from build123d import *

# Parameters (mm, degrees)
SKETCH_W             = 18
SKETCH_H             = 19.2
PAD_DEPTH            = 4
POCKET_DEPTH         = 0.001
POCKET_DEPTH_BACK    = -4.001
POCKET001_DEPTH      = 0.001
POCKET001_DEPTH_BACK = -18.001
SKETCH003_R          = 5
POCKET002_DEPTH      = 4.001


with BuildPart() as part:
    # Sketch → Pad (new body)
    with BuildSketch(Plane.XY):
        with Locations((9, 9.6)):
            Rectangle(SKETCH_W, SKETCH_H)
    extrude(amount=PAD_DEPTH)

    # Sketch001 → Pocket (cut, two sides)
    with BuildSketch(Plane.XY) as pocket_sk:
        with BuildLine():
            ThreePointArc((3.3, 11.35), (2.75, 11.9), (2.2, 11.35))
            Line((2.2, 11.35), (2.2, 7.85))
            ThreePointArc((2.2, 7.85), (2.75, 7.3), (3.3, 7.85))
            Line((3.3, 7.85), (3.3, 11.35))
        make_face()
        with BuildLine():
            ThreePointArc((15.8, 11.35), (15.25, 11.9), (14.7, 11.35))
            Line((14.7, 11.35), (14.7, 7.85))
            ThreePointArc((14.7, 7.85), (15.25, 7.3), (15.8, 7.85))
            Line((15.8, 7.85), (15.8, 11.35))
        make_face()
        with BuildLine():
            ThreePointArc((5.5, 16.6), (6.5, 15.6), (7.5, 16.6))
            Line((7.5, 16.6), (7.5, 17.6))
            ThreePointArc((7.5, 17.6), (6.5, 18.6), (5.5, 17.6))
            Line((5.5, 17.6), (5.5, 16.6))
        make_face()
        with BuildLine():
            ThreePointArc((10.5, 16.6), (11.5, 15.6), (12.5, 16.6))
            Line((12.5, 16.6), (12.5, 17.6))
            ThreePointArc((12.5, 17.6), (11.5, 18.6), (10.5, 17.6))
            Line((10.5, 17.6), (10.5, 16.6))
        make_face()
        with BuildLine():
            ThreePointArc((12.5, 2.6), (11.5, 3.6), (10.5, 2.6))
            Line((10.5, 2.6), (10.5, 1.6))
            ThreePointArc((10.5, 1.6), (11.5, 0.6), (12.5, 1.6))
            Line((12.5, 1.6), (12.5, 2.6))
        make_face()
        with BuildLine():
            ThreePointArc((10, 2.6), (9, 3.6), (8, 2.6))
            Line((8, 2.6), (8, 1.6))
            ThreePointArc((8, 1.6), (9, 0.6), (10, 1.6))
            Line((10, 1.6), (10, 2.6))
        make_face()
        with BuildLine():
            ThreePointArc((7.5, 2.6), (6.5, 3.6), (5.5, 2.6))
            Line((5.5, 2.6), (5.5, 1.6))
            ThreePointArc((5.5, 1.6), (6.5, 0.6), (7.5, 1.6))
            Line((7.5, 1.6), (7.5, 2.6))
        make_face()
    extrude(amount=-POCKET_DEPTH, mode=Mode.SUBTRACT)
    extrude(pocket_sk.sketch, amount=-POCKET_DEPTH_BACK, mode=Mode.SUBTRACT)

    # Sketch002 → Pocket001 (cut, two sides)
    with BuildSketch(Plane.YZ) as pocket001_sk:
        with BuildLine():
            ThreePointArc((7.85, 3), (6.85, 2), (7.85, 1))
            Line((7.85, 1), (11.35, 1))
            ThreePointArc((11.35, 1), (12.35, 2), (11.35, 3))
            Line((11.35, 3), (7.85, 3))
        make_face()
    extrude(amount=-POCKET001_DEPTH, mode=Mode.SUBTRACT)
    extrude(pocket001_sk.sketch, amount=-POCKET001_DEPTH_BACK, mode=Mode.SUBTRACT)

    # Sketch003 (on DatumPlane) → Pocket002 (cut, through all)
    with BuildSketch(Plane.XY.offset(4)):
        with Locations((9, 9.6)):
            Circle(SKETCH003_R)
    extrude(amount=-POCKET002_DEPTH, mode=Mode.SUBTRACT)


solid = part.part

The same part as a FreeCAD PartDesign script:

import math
import FreeCAD as App
import Part
import Sketcher
from FreeCAD import Vector


def add_polygon(sketch, points):
    """Adds a closed chain of lines whose ends are joined by coincident constraints."""
    first, n = sketch.GeometryCount, len(points)
    for a, b in zip(points, points[1:] + points[:1]):
        sketch.addGeometry(Part.LineSegment(App.Vector(*a, 0), App.Vector(*b, 0)), False)
    for i in range(n):
        sketch.addConstraint(Sketcher.Constraint("Coincident", first + i, 2, first + (i + 1) % n, 1))

doc = App.newDocument("Part")
body = doc.addObject("PartDesign::Body", "Body")

sketch1 = doc.addObject("Sketcher::SketchObject", "Sketch")
body.addObject(sketch1)
sketch1.AttachmentSupport = (doc.XY_Plane, [""])
sketch1.MapMode = "FlatFace"
add_polygon(sketch1, [(0, 19), (0, 0), (18, 0), (18, 19)])
sketch1.addConstraint([
    Sketcher.Constraint("Vertical", 0),
    Sketcher.Constraint("Horizontal", 1),
    Sketcher.Constraint("Vertical", 2),
    Sketcher.Constraint("Horizontal", 3),
    Sketcher.Constraint("Coincident", 0, 2, -1, 1),
    Sketcher.Constraint("DistanceX", 1, 1, 1, 2, 18.0),
    Sketcher.Constraint("DistanceY", 0, 2, 0, 1, 19.2),
])
pad1 = doc.addObject("PartDesign::Pad", "Pad")
body.addObject(pad1)
pad1.Profile = sketch1
pad1.Length = 4

sketch2 = doc.addObject("Sketcher::SketchObject", "Sketch001")
body.addObject(sketch2)
sketch2.AttachmentSupport = (doc.XY_Plane, [""])
sketch2.MapMode = "FlatFace"
sketch2.addGeometry([
    Part.ArcOfCircle(Part.Circle(Vector(2.8, 11.3, 0), Vector(0, 0, 1), 0.6), math.radians(0), math.radians(180)),
    Part.LineSegment(Vector(2.2, 11.3, 0), Vector(2.2, 7.8, 0)),
    Part.ArcOfCircle(Part.Circle(Vector(2.8, 7.8, 0), Vector(0, 0, 1), 0.6), math.radians(180), math.radians(360)),
    Part.LineSegment(Vector(3.3, 7.8, 0), Vector(3.3, 11.3, 0)),
    Part.ArcOfCircle(Part.Circle(Vector(15.2, 11.3, 0), Vector(0, 0, 1), 0.6), math.radians(0), math.radians(180)),
    Part.LineSegment(Vector(14.7, 11.3, 0), Vector(14.7, 7.8, 0)),
    Part.ArcOfCircle(Part.Circle(Vector(15.2, 7.8, 0), Vector(0, 0, 1), 0.6), math.radians(180), math.radians(360)),
    Part.LineSegment(Vector(15.8, 7.8, 0), Vector(15.8, 11.3, 0)),
    Part.ArcOfCircle(Part.Circle(Vector(6.5, 16.6, 0), Vector(0, 0, 1), 1), math.radians(180), math.radians(360)),
    Part.LineSegment(Vector(7.5, 16.6, 0), Vector(7.5, 17.6, 0)),
    Part.ArcOfCircle(Part.Circle(Vector(6.5, 17.6, 0), Vector(0, 0, 1), 1), math.radians(0), math.radians(180)),
    Part.LineSegment(Vector(5.5, 17.6, 0), Vector(5.5, 16.6, 0)),
    Part.ArcOfCircle(Part.Circle(Vector(11.5, 16.6, 0), Vector(0, 0, 1), 1), math.radians(180), math.radians(360)),
    Part.LineSegment(Vector(12.5, 16.6, 0), Vector(12.5, 17.6, 0)),
    Part.ArcOfCircle(Part.Circle(Vector(11.5, 17.6, 0), Vector(0, 0, 1), 1), math.radians(0), math.radians(180)),
    Part.LineSegment(Vector(10.5, 17.6, 0), Vector(10.5, 16.6, 0)),
    Part.ArcOfCircle(Part.Circle(Vector(11.5, 2.6, 0), Vector(0, 0, 1), 1), math.radians(0), math.radians(180)),
    Part.LineSegment(Vector(10.5, 2.6, 0), Vector(10.5, 1.6, 0)),
    Part.ArcOfCircle(Part.Circle(Vector(11.5, 1.6, 0), Vector(0, 0, 1), 1), math.radians(180), math.radians(360)),
    Part.LineSegment(Vector(12.5, 1.6, 0), Vector(12.5, 2.6, 0)),
    Part.ArcOfCircle(Part.Circle(Vector(9, 2.6, 0), Vector(0, 0, 1), 1), math.radians(0), math.radians(180)),
    Part.LineSegment(Vector(8, 2.6, 0), Vector(8, 1.6, 0)),
    Part.ArcOfCircle(Part.Circle(Vector(9, 1.6, 0), Vector(0, 0, 1), 1), math.radians(180), math.radians(360)),
    Part.LineSegment(Vector(10, 1.6, 0), Vector(10, 2.6, 0)),
    Part.ArcOfCircle(Part.Circle(Vector(6.5, 2.6, 0), Vector(0, 0, 1), 1), math.radians(0), math.radians(180)),
    Part.LineSegment(Vector(5.5, 2.6, 0), Vector(5.5, 1.6, 0)),
    Part.ArcOfCircle(Part.Circle(Vector(6.5, 1.6, 0), Vector(0, 0, 1), 1), math.radians(180), math.radians(360)),
    Part.LineSegment(Vector(7.5, 1.6, 0), Vector(7.5, 2.6, 0)),
], False)
sketch2.addConstraint([
    Sketcher.Constraint("Tangent", 0, 2, 1, 1),
    Sketcher.Constraint("Tangent", 1, 2, 2, 1),
    Sketcher.Constraint("Tangent", 2, 2, 3, 1),
    Sketcher.Constraint("Tangent", 3, 2, 0, 1),
    Sketcher.Constraint("Tangent", 4, 2, 5, 1),
    Sketcher.Constraint("Tangent", 5, 2, 6, 1),
    Sketcher.Constraint("Tangent", 6, 2, 7, 1),
    Sketcher.Constraint("Tangent", 7, 2, 4, 1),
    Sketcher.Constraint("Tangent", 8, 2, 9, 1),
    Sketcher.Constraint("Tangent", 9, 2, 10, 1),
    Sketcher.Constraint("Tangent", 10, 2, 11, 1),
    Sketcher.Constraint("Tangent", 11, 2, 8, 1),
    Sketcher.Constraint("Tangent", 12, 2, 13, 1),
    Sketcher.Constraint("Tangent", 13, 2, 14, 1),
    Sketcher.Constraint("Tangent", 14, 2, 15, 1),
    Sketcher.Constraint("Tangent", 15, 2, 12, 1),
    Sketcher.Constraint("Tangent", 16, 2, 17, 1),
    Sketcher.Constraint("Tangent", 17, 2, 18, 1),
    Sketcher.Constraint("Tangent", 18, 2, 19, 1),
    Sketcher.Constraint("Tangent", 19, 2, 16, 1),
    Sketcher.Constraint("Tangent", 20, 2, 21, 1),
    Sketcher.Constraint("Tangent", 21, 2, 22, 1),
    Sketcher.Constraint("Tangent", 22, 2, 23, 1),
    Sketcher.Constraint("Tangent", 23, 2, 20, 1),
    Sketcher.Constraint("Tangent", 24, 2, 25, 1),
    Sketcher.Constraint("Tangent", 25, 2, 26, 1),
    Sketcher.Constraint("Tangent", 26, 2, 27, 1),
    Sketcher.Constraint("Tangent", 27, 2, 24, 1),
    Sketcher.Constraint("Vertical", 1),
    Sketcher.Constraint("Vertical", 3),
    Sketcher.Constraint("Vertical", 5),
    Sketcher.Constraint("Vertical", 7),
    Sketcher.Constraint("Vertical", 9),
    Sketcher.Constraint("Vertical", 11),
    Sketcher.Constraint("Vertical", 13),
    Sketcher.Constraint("Vertical", 15),
    Sketcher.Constraint("Vertical", 17),
    Sketcher.Constraint("Vertical", 19),
    Sketcher.Constraint("Vertical", 21),
    Sketcher.Constraint("Vertical", 23),
    Sketcher.Constraint("Vertical", 25),
    Sketcher.Constraint("Vertical", 27),
    Sketcher.Constraint("Equal", 2, 4),
    Sketcher.Constraint("Equal", 10, 12),
    Sketcher.Constraint("Equal", 14, 16),
    Sketcher.Constraint("Equal", 18, 20),
    Sketcher.Constraint("Equal", 22, 24),
    Sketcher.Constraint("Horizontal", 0, 3, 4, 3),
    Sketcher.Constraint("Horizontal", 2, 3, 6, 3),
    Sketcher.Constraint("Horizontal", 8, 3, 12, 3),
    Sketcher.Constraint("Horizontal", 10, 3, 14, 3),
    Sketcher.Constraint("Horizontal", 16, 3, 20, 3),
    Sketcher.Constraint("Horizontal", 18, 3, 22, 3),
    Sketcher.Constraint("Horizontal", 20, 3, 24, 3),
    Sketcher.Constraint("Horizontal", 22, 3, 26, 3),
    Sketcher.Constraint("Vertical", 14, 3, 16, 3),
    Sketcher.Constraint("Vertical", 10, 3, 24, 3),
    Sketcher.Constraint("Equal", 15, 17),
    Sketcher.Constraint("Radius", 8, 1.0),
    Sketcher.Constraint("DistanceY", 9, 1, 9, 2, 1.0),
    Sketcher.Constraint("Radius", 0, 0.55),
    Sketcher.Constraint("DistanceY", 1, 2, 1, 1, 3.5),
    Sketcher.Constraint("DistanceX", -1, 1, 20, 3, 9.0),
    Sketcher.Constraint("DistanceX", 8, 3, 12, 3, 5.0),
    Sketcher.Constraint("DistanceY", 16, 3, 12, 3, 14.0),
    Sketcher.Constraint("DistanceX", -1, 1, 8, 3, 6.5),
    Sketcher.Constraint("DistanceY", -1, 1, 8, 3, 16.6),
    Sketcher.Constraint("DistanceX", -1, 1, 0, 2, 2.2),
    Sketcher.Constraint("DistanceX", -1, 1, 4, 2, 14.7),
    Sketcher.Constraint("DistanceY", -1, 1, 0, 3, 11.35),
])
pocket1 = doc.addObject("PartDesign::Pocket", "Pocket")
body.addObject(pocket1)
pocket1.Profile = sketch2
pocket1.Type = "ThroughAll"
pocket1.Midplane = True

sketch3 = doc.addObject("Sketcher::SketchObject", "Sketch002")
body.addObject(sketch3)
sketch3.AttachmentSupport = (doc.YZ_Plane, [""])
sketch3.MapMode = "FlatFace"
sketch3.addGeometry([
    Part.ArcOfCircle(Part.Circle(Vector(7.8, 2, 0), Vector(0, 0, 1), 1), math.radians(90), math.radians(270)),
    Part.LineSegment(Vector(7.8, 1, 0), Vector(11.3, 1, 0)),
    Part.ArcOfCircle(Part.Circle(Vector(11.3, 2, 0), Vector(0, 0, 1), 1), math.radians(-90), math.radians(90)),
    Part.LineSegment(Vector(11.3, 3, 0), Vector(7.8, 3, 0)),
], False)
sketch3.addConstraint([
    Sketcher.Constraint("Tangent", 0, 2, 1, 1),
    Sketcher.Constraint("Tangent", 1, 2, 2, 1),
    Sketcher.Constraint("Tangent", 2, 2, 3, 1),
    Sketcher.Constraint("Tangent", 3, 2, 0, 1),
    Sketcher.Constraint("Horizontal", 1),
    Sketcher.Constraint("Horizontal", 3),
    Sketcher.Constraint("Radius", 0, 1.0),
    Sketcher.Constraint("DistanceX", 1, 1, 1, 2, 3.5),
    Sketcher.Constraint("DistanceY", -1, 1, 0, 3, 2.0),
    Sketcher.Constraint("DistanceX", -1, 1, 0, 3, 7.85),
])
pocket2 = doc.addObject("PartDesign::Pocket", "Pocket001")
body.addObject(pocket2)
pocket2.Profile = sketch3
pocket2.Type = "ThroughAll"
pocket2.Midplane = True

sketch4 = doc.addObject("Sketcher::SketchObject", "Sketch003")
body.addObject(sketch4)
sketch4.AttachmentSupport = (doc.XY_Plane, [""])
sketch4.MapMode = "FlatFace"
sketch4.AttachmentOffset = App.Placement(Vector(0, 0, 4), App.Rotation())
sketch4.addGeometry(Part.Circle(Vector(9, 10, 0), Vector(0, 0, 1), 5), False)
sketch4.addConstraint([
    Sketcher.Constraint("Diameter", 0, 10.0),
    Sketcher.Constraint("DistanceX", -1, 1, 0, 3, 9.0),
    Sketcher.Constraint("DistanceY", -1, 1, 0, 3, 9.6),
])
pocket3 = doc.addObject("PartDesign::Pocket", "Pocket002")
body.addObject(pocket3)
pocket3.Profile = sketch4
pocket3.Type = "ThroughAll"

doc.recompute()
